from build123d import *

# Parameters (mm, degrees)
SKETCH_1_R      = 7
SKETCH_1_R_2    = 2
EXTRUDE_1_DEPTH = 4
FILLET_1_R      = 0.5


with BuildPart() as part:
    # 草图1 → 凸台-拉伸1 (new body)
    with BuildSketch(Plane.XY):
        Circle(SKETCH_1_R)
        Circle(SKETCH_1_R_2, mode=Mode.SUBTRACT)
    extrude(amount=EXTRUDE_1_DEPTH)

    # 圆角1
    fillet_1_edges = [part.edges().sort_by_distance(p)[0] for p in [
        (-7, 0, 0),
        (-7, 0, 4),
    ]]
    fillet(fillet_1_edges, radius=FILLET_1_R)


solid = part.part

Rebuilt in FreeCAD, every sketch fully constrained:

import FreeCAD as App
import Part
import Sketcher


def edges_at(feature, points):
    """Names of the edges that pass closest to the given points."""
    edges = feature.Shape.Edges
    near = lambda p: min(range(len(edges)), key=lambda i: edges[i].distToShape(Part.Vertex(*p))[0])
    return sorted({f"Edge{near(p) + 1}" for p in points})

doc = App.newDocument("Part")
params = doc.addObject("Spreadsheet::Sheet", "Params")
for row, (alias, value) in enumerate([
    ("sketch1_diameter", "14 mm"),
    ("sketch1_diameter2", "4 mm"),
    ("pad1_length", "4 mm"),
    ("fillet_radius", "0.5 mm"),
], start=1):
    params.set(f"A{row}", alias)
    params.set(f"B{row}", "=" + value)
    params.setAlias(f"B{row}", alias)

body = doc.addObject("PartDesign::Body", "Body")

# Sketch on XY plane
sketch1 = body.newObject("Sketcher::SketchObject", "Sketch")
sketch1.AttachmentSupport = (doc.getObject("XY_Plane"), [""])
sketch1.MapMode = "FlatFace"
sketch1.addGeometry([
    Part.Circle(App.Vector(0, 0, 0), App.Vector(0, 0, 1), 7),
    Part.Circle(App.Vector(0, 0, 0), App.Vector(0, 0, 1), 2),
], False)
sketch1.addConstraint([
    Sketcher.Constraint("Coincident", 0, 3, -1, 1),
    Sketcher.Constraint("Coincident", 1, 3, -1, 1),
    Sketcher.Constraint("Diameter", 0, 14.0),
    Sketcher.Constraint("Diameter", 1, 4.0),
])
sketch1.setExpression("Constraints[2]", "Params.sketch1_diameter")
sketch1.setExpression("Constraints[3]", "Params.sketch1_diameter2")
pad1 = body.newObject("PartDesign::Pad", "Pad")
pad1.Profile = sketch1
pad1.setExpression("Length", "Params.pad1_length")
doc.recompute()

fillet = body.newObject("PartDesign::Fillet", "Fillet")
fillet.Base = (pad1, edges_at(pad1, [(-7, 0, 0), (-7, 0, 4)]))
fillet.setExpression("Radius", "Params.fillet_radius")

doc.recompute()
